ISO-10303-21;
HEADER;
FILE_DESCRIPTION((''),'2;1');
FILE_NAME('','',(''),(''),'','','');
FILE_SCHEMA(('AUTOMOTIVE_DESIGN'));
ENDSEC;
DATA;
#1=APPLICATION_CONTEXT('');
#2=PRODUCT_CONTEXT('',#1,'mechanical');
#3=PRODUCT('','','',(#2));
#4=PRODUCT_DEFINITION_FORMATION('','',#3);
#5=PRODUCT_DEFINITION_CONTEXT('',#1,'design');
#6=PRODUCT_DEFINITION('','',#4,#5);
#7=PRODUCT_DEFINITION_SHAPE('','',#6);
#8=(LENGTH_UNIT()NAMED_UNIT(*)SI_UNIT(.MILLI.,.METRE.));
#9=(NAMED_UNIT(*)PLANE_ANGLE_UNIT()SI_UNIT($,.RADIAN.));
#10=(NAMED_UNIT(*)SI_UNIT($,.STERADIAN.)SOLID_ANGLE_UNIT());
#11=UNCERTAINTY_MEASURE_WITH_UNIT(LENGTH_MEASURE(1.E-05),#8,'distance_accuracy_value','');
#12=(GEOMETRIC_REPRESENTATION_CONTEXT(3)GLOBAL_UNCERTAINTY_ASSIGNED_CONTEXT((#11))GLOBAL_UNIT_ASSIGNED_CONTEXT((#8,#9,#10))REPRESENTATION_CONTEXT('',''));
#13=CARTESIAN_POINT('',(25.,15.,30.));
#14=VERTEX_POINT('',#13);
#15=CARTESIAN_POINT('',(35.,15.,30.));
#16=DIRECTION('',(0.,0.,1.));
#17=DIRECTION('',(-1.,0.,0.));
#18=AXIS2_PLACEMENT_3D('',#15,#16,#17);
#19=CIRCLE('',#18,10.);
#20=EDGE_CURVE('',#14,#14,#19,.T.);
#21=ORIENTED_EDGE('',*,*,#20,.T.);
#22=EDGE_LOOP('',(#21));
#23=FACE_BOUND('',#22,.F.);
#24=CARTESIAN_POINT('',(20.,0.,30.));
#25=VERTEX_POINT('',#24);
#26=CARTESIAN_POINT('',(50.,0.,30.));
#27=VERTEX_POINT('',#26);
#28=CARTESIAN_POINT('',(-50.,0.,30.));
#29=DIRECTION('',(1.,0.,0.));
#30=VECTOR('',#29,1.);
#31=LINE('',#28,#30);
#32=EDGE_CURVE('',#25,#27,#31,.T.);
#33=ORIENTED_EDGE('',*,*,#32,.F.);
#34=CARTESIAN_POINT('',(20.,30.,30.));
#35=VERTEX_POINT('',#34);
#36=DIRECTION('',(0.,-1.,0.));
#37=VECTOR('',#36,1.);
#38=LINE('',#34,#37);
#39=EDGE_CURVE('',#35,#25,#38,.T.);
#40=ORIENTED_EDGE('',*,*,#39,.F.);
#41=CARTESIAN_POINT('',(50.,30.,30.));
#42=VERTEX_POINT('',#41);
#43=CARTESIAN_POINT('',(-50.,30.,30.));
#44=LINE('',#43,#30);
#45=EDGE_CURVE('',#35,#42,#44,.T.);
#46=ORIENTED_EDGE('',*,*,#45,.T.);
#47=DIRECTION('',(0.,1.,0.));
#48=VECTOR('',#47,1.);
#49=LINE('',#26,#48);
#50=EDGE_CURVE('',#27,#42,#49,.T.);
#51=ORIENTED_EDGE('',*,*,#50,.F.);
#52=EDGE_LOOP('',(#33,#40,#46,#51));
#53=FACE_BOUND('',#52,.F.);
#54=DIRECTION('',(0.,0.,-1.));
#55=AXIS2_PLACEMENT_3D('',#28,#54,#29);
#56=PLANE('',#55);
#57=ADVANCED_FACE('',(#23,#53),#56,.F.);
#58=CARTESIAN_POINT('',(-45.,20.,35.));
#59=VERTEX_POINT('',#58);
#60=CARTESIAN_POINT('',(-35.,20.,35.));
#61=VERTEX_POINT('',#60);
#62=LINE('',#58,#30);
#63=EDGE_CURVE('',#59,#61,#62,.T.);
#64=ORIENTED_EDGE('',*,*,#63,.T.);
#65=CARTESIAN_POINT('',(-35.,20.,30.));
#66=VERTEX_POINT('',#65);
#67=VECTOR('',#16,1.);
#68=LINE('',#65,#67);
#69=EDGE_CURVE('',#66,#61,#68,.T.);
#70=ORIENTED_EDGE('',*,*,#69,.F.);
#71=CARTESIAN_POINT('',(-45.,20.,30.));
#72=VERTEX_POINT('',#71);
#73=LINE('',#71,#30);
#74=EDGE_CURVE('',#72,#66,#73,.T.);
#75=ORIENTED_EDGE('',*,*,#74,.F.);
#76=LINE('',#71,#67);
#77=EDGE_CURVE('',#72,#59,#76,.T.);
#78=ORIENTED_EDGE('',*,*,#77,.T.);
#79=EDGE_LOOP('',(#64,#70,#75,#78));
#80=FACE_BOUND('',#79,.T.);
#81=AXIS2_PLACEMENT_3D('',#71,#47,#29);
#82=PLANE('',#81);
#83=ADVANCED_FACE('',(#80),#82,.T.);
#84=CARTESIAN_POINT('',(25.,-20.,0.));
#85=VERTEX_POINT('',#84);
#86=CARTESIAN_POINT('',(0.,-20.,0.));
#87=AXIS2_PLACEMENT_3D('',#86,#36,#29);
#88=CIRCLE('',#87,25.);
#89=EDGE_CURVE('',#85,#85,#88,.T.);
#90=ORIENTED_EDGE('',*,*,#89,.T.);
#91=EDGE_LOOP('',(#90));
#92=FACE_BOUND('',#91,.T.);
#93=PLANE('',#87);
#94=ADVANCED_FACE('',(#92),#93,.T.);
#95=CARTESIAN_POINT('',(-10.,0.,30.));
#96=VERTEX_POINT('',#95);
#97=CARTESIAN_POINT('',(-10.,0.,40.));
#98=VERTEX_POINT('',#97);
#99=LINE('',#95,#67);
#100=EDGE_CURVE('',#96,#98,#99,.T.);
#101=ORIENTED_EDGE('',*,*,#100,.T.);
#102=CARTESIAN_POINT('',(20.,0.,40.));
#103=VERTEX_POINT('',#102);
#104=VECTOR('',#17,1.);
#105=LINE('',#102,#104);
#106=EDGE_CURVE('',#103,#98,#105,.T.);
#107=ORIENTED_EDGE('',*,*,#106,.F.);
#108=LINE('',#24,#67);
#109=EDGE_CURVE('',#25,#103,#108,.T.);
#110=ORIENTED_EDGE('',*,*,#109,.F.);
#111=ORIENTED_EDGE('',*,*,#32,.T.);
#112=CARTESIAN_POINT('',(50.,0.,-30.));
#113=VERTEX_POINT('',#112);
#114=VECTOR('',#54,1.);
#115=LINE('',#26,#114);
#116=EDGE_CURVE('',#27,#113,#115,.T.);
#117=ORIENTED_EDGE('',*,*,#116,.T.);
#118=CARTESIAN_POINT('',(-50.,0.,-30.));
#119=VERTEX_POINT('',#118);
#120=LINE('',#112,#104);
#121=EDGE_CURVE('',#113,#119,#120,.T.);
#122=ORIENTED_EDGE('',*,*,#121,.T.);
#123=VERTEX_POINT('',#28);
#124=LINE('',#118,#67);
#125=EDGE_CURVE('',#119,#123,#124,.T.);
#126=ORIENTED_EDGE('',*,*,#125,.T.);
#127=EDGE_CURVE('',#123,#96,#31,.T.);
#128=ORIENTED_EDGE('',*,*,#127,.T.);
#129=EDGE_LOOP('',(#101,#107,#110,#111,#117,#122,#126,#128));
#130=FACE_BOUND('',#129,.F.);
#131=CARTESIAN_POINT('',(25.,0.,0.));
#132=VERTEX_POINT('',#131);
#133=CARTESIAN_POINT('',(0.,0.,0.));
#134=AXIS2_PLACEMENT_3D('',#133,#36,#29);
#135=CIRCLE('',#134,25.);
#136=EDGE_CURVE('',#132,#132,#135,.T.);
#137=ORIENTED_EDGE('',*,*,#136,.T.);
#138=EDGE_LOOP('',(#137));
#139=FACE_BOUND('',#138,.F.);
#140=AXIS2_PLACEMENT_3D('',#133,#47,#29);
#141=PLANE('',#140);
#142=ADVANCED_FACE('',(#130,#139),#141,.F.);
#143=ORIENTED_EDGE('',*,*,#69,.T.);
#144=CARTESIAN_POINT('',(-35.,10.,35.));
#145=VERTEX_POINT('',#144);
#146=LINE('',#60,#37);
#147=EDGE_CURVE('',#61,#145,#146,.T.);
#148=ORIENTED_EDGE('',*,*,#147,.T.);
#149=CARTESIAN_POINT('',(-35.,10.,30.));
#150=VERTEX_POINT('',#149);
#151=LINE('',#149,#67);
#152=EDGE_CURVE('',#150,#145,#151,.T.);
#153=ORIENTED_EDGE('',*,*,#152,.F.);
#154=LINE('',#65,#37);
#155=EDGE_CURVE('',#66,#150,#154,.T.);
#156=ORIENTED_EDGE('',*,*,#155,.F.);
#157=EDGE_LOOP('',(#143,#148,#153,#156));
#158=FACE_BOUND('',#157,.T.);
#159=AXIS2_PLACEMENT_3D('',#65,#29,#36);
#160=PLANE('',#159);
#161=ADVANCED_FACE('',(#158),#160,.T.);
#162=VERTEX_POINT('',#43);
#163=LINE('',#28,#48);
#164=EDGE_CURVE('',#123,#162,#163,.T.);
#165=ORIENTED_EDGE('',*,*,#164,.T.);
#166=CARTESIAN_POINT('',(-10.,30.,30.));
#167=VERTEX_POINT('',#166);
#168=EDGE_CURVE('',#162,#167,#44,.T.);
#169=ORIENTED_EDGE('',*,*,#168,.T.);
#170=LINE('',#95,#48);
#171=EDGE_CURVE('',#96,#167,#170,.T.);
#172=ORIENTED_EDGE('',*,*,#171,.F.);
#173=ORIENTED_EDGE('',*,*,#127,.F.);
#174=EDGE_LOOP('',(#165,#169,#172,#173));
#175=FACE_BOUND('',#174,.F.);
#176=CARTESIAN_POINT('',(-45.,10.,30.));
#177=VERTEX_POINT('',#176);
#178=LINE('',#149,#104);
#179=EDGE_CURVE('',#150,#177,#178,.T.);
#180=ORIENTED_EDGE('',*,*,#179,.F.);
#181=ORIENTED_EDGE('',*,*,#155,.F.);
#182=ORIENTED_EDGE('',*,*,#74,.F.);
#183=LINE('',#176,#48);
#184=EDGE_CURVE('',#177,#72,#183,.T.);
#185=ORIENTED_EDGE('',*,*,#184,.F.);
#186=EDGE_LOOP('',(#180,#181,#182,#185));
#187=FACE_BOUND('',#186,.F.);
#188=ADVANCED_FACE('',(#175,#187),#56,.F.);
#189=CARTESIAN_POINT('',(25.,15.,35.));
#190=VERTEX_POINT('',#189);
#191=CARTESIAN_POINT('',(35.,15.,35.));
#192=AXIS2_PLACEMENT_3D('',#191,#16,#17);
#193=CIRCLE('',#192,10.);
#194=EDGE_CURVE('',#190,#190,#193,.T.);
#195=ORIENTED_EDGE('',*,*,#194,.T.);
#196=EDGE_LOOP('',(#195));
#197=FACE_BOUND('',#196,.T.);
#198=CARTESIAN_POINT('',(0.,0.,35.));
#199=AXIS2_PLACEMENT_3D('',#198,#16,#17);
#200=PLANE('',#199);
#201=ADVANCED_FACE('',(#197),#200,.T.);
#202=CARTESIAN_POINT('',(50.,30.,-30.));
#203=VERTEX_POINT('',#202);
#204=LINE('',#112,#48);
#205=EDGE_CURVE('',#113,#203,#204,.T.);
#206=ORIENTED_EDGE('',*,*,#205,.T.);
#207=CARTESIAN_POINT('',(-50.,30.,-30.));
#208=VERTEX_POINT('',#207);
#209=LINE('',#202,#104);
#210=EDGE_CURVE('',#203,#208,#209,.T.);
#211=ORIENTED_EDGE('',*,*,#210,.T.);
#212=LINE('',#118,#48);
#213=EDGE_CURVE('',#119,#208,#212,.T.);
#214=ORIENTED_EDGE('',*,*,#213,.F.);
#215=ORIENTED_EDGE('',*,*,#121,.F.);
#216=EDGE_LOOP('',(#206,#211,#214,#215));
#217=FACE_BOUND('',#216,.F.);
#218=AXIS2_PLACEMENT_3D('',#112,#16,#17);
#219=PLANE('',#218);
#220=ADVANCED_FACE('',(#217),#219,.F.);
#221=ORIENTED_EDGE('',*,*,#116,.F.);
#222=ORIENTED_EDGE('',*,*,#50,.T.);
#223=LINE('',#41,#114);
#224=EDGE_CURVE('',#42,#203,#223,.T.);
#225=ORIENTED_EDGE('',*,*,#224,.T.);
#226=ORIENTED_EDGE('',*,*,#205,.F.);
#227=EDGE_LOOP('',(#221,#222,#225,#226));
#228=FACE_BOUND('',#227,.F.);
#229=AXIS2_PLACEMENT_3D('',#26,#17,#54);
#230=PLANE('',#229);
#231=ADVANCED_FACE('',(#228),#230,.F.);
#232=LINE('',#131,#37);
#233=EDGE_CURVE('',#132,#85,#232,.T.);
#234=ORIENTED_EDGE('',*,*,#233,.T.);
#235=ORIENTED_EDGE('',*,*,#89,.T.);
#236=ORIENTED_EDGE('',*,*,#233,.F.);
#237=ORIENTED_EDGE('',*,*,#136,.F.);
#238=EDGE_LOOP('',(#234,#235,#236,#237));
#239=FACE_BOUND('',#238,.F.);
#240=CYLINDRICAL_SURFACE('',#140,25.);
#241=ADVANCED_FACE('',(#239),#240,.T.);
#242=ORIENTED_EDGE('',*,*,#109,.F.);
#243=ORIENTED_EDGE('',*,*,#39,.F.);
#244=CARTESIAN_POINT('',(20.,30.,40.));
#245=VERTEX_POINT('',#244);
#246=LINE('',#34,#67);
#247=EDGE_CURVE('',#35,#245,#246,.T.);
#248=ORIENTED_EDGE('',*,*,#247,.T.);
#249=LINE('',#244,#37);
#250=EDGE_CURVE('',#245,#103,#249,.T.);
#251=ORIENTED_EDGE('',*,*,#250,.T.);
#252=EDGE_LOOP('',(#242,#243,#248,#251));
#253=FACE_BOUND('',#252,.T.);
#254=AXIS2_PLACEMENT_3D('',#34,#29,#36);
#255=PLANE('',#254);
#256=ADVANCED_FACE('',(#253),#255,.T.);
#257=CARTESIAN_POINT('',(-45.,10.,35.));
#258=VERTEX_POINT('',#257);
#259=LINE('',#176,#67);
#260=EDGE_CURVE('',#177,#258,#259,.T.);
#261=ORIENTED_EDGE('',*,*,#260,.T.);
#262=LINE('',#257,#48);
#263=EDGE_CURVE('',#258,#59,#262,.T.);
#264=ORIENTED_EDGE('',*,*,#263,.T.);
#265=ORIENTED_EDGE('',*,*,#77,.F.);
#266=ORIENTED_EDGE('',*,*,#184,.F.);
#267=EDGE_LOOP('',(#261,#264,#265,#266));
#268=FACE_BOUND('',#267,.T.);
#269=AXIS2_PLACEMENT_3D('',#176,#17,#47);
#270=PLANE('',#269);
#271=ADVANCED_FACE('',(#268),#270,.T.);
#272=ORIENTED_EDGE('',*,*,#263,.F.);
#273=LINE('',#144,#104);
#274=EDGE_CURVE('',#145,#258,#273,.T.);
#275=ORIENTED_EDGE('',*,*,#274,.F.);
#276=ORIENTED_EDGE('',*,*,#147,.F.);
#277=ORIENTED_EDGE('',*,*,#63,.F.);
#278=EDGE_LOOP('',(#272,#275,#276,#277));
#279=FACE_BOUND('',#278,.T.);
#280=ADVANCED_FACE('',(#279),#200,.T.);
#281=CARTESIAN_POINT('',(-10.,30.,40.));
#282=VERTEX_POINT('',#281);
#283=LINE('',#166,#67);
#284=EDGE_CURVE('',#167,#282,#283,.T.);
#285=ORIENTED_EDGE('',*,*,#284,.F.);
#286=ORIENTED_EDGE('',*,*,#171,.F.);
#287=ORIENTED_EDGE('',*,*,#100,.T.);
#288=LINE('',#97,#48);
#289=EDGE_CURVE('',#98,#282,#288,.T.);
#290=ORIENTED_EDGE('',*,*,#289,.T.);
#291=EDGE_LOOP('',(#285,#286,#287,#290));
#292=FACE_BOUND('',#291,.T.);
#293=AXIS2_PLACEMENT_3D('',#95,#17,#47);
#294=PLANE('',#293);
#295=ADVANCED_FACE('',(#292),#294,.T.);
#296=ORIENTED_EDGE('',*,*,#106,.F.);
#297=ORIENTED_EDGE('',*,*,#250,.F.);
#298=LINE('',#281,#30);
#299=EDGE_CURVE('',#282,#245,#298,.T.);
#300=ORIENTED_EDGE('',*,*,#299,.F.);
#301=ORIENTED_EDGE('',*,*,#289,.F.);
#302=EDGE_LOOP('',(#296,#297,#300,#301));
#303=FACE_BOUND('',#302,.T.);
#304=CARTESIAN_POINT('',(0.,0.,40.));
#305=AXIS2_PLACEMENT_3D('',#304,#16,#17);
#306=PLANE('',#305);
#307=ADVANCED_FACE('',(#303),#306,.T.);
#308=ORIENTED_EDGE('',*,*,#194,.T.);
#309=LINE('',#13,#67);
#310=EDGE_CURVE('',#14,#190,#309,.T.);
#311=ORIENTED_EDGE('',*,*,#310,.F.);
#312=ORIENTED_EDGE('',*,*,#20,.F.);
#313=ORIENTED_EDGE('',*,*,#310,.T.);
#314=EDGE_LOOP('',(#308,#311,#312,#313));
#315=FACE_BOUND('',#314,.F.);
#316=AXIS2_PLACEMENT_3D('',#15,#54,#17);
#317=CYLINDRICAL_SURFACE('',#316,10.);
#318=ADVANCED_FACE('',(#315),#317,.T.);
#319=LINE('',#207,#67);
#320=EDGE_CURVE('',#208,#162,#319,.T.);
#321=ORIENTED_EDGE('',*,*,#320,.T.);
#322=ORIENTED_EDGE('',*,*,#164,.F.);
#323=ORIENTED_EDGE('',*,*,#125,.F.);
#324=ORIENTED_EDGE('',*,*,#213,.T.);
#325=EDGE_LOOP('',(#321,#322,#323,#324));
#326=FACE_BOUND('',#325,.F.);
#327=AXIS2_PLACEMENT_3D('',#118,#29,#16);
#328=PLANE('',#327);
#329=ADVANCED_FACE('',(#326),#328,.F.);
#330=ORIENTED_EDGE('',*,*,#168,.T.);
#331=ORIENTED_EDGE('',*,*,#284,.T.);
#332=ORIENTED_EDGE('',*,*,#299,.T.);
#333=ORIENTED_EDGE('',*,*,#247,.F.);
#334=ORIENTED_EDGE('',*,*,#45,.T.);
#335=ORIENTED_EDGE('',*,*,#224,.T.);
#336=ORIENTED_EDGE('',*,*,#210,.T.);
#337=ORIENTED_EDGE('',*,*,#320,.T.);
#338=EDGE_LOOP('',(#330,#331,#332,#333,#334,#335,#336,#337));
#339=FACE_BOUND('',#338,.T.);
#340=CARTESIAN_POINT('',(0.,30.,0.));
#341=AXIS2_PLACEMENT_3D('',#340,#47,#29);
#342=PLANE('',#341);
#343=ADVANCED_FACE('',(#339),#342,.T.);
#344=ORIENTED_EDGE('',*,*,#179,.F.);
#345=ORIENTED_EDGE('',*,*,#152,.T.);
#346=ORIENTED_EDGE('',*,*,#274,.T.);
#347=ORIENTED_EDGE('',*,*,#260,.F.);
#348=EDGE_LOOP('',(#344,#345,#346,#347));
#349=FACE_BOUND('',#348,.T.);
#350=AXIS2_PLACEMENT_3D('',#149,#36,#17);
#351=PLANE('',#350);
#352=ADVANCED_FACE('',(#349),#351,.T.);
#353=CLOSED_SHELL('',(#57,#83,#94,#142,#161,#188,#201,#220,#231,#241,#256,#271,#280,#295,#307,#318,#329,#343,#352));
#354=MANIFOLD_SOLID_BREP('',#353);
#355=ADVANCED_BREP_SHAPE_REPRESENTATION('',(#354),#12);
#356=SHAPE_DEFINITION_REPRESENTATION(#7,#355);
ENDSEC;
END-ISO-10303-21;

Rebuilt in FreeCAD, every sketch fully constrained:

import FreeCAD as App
import Part
import Sketcher


def add_polygon(sketch, points):
    """Adds a closed chain of lines whose ends are joined by coincident constraints."""
    first, n = sketch.GeometryCount, len(points)
    for a, b in zip(points, points[1:] + points[:1]):
        sketch.addGeometry(Part.LineSegment(App.Vector(*a, 0), App.Vector(*b, 0)), False)
    for i in range(n):
        sketch.addConstraint(Sketcher.Constraint("Coincident", first + i, 2, first + (i + 1) % n, 1))

doc = App.newDocument("Part")
body = doc.addObject("PartDesign::Body", "Body")

# Sketch on XZ plane
sketch1 = doc.addObject("Sketcher::SketchObject", "Sketch")
body.addObject(sketch1)
sketch1.AttachmentSupport = (doc.XZ_Plane, [""])
sketch1.MapMode = "FlatFace"
add_polygon(sketch1, [(-50, -30), (-50, 30), (50, 30), (50, -30)])  # lines 0-3
sketch1.addConstraint([
    Sketcher.Constraint("Vertical", 0),
    Sketcher.Constraint("Horizontal", 1),
    Sketcher.Constraint("Vertical", 2),
    Sketcher.Constraint("Horizontal", 3),
    Sketcher.Constraint("Symmetric", 0, 2, 2, 2, -1, 1),
    Sketcher.Constraint("DistanceX", 1, 1, 1, 2, 100.0),
    Sketcher.Constraint("DistanceY", 0, 1, 0, 2, 60.0),
])
pad1 = doc.addObject("PartDesign::Pad", "Pad")
body.addObject(pad1)
pad1.Profile = sketch1
pad1.Length = 30
pad1.Reversed = True

# Sketch on XZ plane
sketch2 = doc.addObject("Sketcher::SketchObject", "Sketch001")
body.addObject(sketch2)
sketch2.AttachmentSupport = (doc.XZ_Plane, [""])
sketch2.MapMode = "FlatFace"
sketch2.addGeometry(Part.Circle(App.Vector(0, 0, 0), App.Vector(0, 0, 1), 25), False)
sketch2.addConstraint([
    Sketcher.Constraint("Coincident", 0, 3, -1, 1),
    Sketcher.Constraint("Diameter", 0, 50.0),
])
pad2 = doc.addObject("PartDesign::Pad", "Pad001")
body.addObject(pad2)
pad2.Profile = sketch2
pad2.Length = 20

# Sketch on XY plane
sketch3 = doc.addObject("Sketcher::SketchObject", "Sketch002")
body.addObject(sketch3)
sketch3.AttachmentSupport = (doc.XY_Plane, [""])
sketch3.MapMode = "FlatFace"
sketch3.AttachmentOffset = App.Placement(App.Vector(0, 0, 30), App.Rotation())
sketch3.addGeometry(Part.Circle(App.Vector(35, 15, 0), App.Vector(0, 0, 1), 10), False)
sketch3.addConstraint([
    Sketcher.Constraint("Diameter", 0, 20.0),
    Sketcher.Constraint("DistanceY", -1, 1, 0, 3, 15.0),
    Sketcher.Constraint("DistanceX", -1, 1, 0, 3, 35.0),
])
pad3 = doc.addObject("PartDesign::Pad", "Pad002")
body.addObject(pad3)
pad3.Profile = sketch3
pad3.Length = 5

# Sketch on XY plane
sketch4 = doc.addObject("Sketcher::SketchObject", "Sketch003")
body.addObject(sketch4)
sketch4.AttachmentSupport = (doc.XY_Plane, [""])
sketch4.MapMode = "FlatFace"
sketch4.AttachmentOffset = App.Placement(App.Vector(0, 0, 30), App.Rotation())
add_polygon(sketch4, [(-10, 0), (20, 0), (20, 30), (-10, 30)])  # lines 0-3
sketch4.addConstraint([
    Sketcher.Constraint("Horizontal", 0),
    Sketcher.Constraint("Vertical", 1),
    Sketcher.Constraint("Horizontal", 2),
    Sketcher.Constraint("Vertical", 3),
    Sketcher.Constraint("PointOnObject", 0, 2, -1),
    Sketcher.Constraint("Equal", 2, 1),
    Sketcher.Constraint("DistanceX", 0, 1, 0, 2, 30.0),
    Sketcher.Constraint("DistanceX", -1, 1, 0, 2, 20.0),
])
pad4 = doc.addObject("PartDesign::Pad", "Pad003")
body.addObject(pad4)
pad4.Profile = sketch4
pad4.Length = 10

# Sketch on XY plane
sketch5 = doc.addObject("Sketcher::SketchObject", "Sketch004")
body.addObject(sketch5)
sketch5.AttachmentSupport = (doc.XY_Plane, [""])
sketch5.MapMode = "FlatFace"
sketch5.AttachmentOffset = App.Placement(App.Vector(0, 0, 30), App.Rotation())
add_polygon(sketch5, [(-45, 10), (-35, 10), (-35, 20), (-45, 20)])  # lines 0-3
sketch5.addConstraint([
    Sketcher.Constraint("Horizontal", 0),
    Sketcher.Constraint("Vertical", 1),
    Sketcher.Constraint("Horizontal", 2),
    Sketcher.Constraint("Vertical", 3),
    Sketcher.Constraint("Equal", 2, 1),
    Sketcher.Constraint("DistanceX", 0, 1, 0, 2, 10.0),
    Sketcher.Constraint("DistanceX", 0, 2, -1, 1, 35.0),
    Sketcher.Constraint("DistanceY", -1, 1, 0, 2, 10.0),
])
pad5 = doc.addObject("PartDesign::Pad", "Pad004")
body.addObject(pad5)
pad5.Profile = sketch5
pad5.Length = 5

doc.recompute()
